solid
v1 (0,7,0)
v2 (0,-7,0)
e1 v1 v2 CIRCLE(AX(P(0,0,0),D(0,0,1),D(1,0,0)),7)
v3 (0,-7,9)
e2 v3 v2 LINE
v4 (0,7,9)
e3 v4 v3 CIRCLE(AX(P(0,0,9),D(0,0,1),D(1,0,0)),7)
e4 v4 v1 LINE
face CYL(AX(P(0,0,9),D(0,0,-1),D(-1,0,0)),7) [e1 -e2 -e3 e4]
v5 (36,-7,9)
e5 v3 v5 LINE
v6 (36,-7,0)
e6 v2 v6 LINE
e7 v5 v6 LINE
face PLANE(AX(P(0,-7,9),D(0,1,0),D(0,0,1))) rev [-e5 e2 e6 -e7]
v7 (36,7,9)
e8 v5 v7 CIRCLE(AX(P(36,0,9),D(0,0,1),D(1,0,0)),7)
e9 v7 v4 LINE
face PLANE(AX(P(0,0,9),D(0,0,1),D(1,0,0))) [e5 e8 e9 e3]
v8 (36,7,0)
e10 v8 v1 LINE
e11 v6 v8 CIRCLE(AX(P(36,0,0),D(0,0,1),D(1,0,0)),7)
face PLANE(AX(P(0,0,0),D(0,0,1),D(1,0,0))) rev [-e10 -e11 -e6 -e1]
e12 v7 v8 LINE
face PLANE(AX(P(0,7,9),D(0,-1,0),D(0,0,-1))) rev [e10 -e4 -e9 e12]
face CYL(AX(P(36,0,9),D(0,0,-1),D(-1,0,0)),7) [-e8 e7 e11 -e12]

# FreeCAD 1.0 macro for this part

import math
import FreeCAD as App
import Part
import Sketcher
from FreeCAD import Vector
Q = App.Units.Quantity

doc = App.newDocument("Part")
body = doc.addObject("PartDesign::Body", "Body")

# Sketch on XY plane
sketch1 = body.newObject("Sketcher::SketchObject", "Sketch")
sketch1.AttachmentSupport = (doc.getObject("XY_Plane"), [""])
sketch1.MapMode = "FlatFace"
sketch1.addGeometry([
    Part.LineSegment(Vector(36, 7, 0), Vector(0, 7, 0)),
    Part.ArcOfCircle(Part.Circle(Vector(0, 0, 0), Vector(0, 0, 1), 7), math.radians(90), math.radians(270)),
    Part.LineSegment(Vector(0, -7, 0), Vector(36, -7, 0)),
    Part.ArcOfCircle(Part.Circle(Vector(36, 0, 0), Vector(0, 0, 1), 7), math.radians(-90), math.radians(90)),
], False)
sketch1.addConstraint([
    Sketcher.Constraint("Tangent", 0, 2, 1, 1),
    Sketcher.Constraint("Tangent", 1, 2, 2, 1),
    Sketcher.Constraint("Tangent", 2, 2, 3, 1),
    Sketcher.Constraint("Tangent", 3, 2, 0, 1),
    Sketcher.Constraint("Horizontal", 0),
    Sketcher.Constraint("Horizontal", 2),
    Sketcher.Constraint("Coincident", 1, 3, -1, 1),
    Sketcher.Constraint("Radius", 1, Q("7 mm")),
    Sketcher.Constraint("DistanceX", 0, 2, 0, 1, Q("36 mm")),
])
pad1 = body.newObject("PartDesign::Pad", "Pad")
pad1.Profile = sketch1
pad1.Length = 9

doc.recompute()
